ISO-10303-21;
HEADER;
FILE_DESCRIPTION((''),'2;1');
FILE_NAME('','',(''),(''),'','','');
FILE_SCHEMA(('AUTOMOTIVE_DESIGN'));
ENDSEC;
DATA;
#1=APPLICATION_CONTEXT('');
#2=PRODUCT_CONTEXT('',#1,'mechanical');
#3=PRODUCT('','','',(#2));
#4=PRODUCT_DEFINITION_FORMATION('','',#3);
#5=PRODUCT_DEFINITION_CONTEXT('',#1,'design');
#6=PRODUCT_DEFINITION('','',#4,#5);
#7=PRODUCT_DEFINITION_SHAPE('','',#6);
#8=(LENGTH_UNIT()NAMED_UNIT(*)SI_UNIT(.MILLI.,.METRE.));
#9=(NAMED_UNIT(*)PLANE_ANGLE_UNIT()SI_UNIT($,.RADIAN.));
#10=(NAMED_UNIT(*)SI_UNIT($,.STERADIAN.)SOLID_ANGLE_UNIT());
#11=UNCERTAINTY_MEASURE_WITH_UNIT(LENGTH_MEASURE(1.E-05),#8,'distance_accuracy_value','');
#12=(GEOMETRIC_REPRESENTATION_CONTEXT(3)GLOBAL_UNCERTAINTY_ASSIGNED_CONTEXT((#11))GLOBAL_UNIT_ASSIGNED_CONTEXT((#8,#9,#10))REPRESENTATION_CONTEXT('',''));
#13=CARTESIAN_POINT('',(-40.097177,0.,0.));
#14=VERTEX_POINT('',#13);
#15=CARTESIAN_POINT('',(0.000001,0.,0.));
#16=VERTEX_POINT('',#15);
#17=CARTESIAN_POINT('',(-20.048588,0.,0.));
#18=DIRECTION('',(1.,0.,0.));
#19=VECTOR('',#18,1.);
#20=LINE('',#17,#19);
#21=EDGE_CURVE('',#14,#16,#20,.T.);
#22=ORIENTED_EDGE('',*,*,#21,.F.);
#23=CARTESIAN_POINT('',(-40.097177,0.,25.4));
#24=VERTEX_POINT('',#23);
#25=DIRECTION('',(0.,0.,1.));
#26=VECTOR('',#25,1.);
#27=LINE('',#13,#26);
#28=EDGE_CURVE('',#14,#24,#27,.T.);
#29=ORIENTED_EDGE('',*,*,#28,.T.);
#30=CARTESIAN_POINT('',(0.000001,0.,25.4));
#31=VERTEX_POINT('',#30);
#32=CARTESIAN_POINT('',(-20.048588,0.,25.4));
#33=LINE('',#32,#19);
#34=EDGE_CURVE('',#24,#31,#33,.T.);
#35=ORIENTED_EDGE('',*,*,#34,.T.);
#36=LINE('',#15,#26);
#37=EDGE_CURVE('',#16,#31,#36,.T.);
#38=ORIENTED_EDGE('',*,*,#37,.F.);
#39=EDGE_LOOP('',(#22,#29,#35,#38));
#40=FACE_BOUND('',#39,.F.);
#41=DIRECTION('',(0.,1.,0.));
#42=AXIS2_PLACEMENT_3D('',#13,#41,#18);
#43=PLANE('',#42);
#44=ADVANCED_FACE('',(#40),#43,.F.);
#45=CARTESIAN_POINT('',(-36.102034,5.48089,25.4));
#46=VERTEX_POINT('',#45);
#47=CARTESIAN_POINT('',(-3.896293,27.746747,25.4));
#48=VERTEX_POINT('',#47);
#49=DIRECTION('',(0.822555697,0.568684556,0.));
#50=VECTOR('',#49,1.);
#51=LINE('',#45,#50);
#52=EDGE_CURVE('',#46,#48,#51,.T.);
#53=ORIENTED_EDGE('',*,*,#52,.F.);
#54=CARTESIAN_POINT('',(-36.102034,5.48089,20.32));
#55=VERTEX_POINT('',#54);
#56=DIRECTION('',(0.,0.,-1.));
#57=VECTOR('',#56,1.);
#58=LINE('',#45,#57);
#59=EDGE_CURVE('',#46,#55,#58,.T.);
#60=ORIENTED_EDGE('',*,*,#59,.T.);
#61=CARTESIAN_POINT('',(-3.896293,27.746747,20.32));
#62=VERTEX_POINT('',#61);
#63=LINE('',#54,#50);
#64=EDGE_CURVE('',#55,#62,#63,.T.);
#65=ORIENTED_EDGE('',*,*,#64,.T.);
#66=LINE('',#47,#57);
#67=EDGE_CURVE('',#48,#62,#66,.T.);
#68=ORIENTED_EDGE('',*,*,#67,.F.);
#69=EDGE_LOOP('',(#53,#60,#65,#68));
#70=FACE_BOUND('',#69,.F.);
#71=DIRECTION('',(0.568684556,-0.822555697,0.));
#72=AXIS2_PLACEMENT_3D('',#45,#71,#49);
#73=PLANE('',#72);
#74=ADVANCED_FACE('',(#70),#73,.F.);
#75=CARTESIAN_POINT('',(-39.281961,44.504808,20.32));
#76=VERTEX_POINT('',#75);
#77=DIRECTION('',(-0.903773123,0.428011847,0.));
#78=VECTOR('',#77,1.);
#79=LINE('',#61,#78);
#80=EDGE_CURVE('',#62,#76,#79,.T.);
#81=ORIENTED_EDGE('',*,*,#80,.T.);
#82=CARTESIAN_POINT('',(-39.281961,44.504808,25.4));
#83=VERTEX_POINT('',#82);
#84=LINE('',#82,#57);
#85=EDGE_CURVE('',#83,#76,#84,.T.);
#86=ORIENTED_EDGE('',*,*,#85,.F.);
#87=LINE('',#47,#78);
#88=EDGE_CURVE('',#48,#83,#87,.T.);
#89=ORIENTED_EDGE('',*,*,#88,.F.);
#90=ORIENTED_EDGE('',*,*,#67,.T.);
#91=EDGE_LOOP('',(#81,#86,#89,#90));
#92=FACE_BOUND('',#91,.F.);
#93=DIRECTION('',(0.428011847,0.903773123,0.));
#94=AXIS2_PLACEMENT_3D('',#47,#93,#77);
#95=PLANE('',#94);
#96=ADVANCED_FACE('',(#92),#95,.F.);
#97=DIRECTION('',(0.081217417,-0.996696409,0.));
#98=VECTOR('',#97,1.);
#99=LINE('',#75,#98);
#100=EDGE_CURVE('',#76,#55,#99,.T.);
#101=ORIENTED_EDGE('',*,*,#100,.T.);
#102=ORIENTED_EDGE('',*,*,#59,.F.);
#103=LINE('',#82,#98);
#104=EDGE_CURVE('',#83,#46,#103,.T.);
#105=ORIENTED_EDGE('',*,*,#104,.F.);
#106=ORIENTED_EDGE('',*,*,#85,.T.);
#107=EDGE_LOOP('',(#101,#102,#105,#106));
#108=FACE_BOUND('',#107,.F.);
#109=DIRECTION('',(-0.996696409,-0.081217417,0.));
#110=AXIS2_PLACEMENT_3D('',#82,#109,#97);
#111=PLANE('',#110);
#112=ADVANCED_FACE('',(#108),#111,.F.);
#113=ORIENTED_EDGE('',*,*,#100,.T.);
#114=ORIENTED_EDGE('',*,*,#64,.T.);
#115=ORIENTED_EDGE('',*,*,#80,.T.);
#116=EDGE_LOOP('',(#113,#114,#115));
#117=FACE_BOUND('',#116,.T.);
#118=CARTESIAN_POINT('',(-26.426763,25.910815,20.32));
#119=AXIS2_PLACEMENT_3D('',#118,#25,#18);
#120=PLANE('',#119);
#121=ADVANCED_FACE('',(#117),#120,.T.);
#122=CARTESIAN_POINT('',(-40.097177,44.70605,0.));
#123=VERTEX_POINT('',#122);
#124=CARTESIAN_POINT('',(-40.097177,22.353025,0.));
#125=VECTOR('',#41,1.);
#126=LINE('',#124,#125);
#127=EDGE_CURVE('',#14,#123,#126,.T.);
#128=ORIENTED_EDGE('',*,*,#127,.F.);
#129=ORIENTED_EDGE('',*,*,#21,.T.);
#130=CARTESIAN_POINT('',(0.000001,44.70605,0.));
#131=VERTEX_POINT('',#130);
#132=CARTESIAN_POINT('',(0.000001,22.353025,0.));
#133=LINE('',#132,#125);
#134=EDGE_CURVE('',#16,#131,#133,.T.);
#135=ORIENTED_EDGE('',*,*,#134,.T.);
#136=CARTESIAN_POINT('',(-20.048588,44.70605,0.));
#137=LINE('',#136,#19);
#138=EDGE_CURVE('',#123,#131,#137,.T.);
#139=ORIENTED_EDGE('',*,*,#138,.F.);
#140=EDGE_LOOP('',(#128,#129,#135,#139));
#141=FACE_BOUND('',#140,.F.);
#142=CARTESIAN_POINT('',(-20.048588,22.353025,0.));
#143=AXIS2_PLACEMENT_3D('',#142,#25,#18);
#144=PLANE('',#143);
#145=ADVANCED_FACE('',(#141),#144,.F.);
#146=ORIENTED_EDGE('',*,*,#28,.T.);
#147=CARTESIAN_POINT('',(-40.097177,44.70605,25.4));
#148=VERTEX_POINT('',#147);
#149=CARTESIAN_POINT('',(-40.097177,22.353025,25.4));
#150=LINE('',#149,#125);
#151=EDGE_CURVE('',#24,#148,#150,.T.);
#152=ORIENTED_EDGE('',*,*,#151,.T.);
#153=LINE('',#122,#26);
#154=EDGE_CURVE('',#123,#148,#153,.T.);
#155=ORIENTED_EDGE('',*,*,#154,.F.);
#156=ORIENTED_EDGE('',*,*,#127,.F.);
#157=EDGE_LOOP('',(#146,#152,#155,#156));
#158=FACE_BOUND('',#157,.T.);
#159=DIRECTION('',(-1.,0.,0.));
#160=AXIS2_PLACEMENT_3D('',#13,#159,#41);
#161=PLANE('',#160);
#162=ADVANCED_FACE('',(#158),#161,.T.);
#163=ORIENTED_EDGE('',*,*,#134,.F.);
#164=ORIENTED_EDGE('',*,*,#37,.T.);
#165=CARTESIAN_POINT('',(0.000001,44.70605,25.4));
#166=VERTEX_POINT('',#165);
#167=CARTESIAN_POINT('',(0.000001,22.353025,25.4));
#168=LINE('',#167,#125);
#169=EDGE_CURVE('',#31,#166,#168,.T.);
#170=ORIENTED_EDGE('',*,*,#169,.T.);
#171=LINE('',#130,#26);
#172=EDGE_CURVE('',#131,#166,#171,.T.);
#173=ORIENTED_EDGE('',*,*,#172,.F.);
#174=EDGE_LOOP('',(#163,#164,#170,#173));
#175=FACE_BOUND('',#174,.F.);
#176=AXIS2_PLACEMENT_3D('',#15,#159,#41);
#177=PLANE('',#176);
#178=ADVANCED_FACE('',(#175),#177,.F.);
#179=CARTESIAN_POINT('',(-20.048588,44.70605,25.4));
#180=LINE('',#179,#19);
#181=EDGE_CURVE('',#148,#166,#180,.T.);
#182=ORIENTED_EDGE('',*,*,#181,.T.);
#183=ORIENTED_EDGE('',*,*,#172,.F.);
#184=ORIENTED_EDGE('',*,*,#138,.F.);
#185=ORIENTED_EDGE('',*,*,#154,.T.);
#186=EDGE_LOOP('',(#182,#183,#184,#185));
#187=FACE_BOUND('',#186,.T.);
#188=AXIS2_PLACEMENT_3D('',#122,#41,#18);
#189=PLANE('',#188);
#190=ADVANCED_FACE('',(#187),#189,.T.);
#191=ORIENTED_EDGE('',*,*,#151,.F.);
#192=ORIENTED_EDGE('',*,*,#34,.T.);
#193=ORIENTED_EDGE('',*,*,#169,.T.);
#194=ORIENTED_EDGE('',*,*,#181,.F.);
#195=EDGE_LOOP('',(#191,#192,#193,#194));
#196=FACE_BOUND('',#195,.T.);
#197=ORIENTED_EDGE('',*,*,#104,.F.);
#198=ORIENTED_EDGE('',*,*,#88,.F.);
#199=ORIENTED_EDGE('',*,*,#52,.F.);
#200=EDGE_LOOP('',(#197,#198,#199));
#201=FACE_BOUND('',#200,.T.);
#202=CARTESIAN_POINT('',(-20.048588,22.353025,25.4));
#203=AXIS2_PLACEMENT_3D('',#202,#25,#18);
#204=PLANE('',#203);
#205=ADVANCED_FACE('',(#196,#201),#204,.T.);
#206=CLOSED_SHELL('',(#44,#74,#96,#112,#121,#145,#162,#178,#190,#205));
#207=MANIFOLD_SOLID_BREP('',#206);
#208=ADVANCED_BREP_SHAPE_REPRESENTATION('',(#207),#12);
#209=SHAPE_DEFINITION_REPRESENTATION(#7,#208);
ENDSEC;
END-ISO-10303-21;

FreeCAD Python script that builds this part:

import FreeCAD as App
import Part
import Sketcher

V = App.Vector
Q = App.Units.Quantity

doc = App.newDocument("Part")
body = doc.addObject("PartDesign::Body", "Body")

sketch1 = body.newObject("Sketcher::SketchObject", "Sketch")
sketch1.AttachmentSupport = (doc.getObject("XY_Plane"), [""])
sketch1.MapMode = "FlatFace"
sketch1.addGeometry([
    Part.LineSegment(V(-40.097177, 44.70605, 0), V(-40.097177, 0, 0)),
    Part.LineSegment(V(-40.097177, 0, 0), V(0, 0, 0)),
    Part.LineSegment(V(0, 0, 0), V(0, 44.70605, 0)),
    Part.LineSegment(V(0, 44.70605, 0), V(-40.097177, 44.70605, 0)),
], False)
sketch1.addConstraint([
    Sketcher.Constraint("Coincident", 0, 2, 1, 1),
    Sketcher.Constraint("Coincident", 1, 2, 2, 1),
    Sketcher.Constraint("Coincident", 2, 2, 3, 1),
    Sketcher.Constraint("Coincident", 3, 2, 0, 1),
    Sketcher.Constraint("Vertical", 0),
    Sketcher.Constraint("Horizontal", 1),
    Sketcher.Constraint("Vertical", 2),
    Sketcher.Constraint("Horizontal", 3),
    Sketcher.Constraint("Coincident", 1, 2, -1, 1),
    Sketcher.Constraint("DistanceY", 0, 2, 0, 1, Q("44.70605 mm")),
    Sketcher.Constraint("DistanceX", 1, 1, 1, 2, Q("40.097177 mm")),
])
pad1 = body.newObject("PartDesign::Pad", "Pad")
pad1.Profile = sketch1
pad1.Length = Q("1 in")

sketch2 = body.newObject("Sketcher::SketchObject", "Sketch001")
sketch2.AttachmentSupport = (doc.getObject("XY_Plane"), [""])
sketch2.MapMode = "FlatFace"
sketch2.AttachmentOffset = App.Placement(V(0, 0, 1 * 25.4), App.Rotation())
sketch2.addGeometry([
    Part.LineSegment(V(-36.102034, 5.48089, 0), V(-3.896293, 27.746747, 0)),
    Part.LineSegment(V(-3.896293, 27.746747, 0), V(-39.281961, 44.504808, 0)),
    Part.LineSegment(V(-39.281961, 44.504808, 0), V(-36.102034, 5.48089, 0)),
], False)
sketch2.addConstraint([
    Sketcher.Constraint("Coincident", 0, 2, 1, 1),
    Sketcher.Constraint("Coincident", 1, 2, 2, 1),
    Sketcher.Constraint("Coincident", 2, 2, 0, 1),
    Sketcher.Constraint("Equal", 0, 1),
    Sketcher.Constraint("Equal", 1, 2),
    Sketcher.Constraint("DistanceX", 1, 2, -1, 1, Q("39.281961 mm")),
    Sketcher.Constraint("DistanceY", -1, 1, 2, 2, Q("5.48089 mm")),
    Sketcher.Constraint("DistanceX", 1, 2, 0, 2, Q("35.385668 mm")),
    Sketcher.Constraint("DistanceY", 0, 2, 1, 2, Q("16.758061 mm")),
])
pocket1 = body.newObject("PartDesign::Pocket", "Pocket")
pocket1.Profile = sketch2
pocket1.Length = Q("0.2 in")

doc.recompute()
